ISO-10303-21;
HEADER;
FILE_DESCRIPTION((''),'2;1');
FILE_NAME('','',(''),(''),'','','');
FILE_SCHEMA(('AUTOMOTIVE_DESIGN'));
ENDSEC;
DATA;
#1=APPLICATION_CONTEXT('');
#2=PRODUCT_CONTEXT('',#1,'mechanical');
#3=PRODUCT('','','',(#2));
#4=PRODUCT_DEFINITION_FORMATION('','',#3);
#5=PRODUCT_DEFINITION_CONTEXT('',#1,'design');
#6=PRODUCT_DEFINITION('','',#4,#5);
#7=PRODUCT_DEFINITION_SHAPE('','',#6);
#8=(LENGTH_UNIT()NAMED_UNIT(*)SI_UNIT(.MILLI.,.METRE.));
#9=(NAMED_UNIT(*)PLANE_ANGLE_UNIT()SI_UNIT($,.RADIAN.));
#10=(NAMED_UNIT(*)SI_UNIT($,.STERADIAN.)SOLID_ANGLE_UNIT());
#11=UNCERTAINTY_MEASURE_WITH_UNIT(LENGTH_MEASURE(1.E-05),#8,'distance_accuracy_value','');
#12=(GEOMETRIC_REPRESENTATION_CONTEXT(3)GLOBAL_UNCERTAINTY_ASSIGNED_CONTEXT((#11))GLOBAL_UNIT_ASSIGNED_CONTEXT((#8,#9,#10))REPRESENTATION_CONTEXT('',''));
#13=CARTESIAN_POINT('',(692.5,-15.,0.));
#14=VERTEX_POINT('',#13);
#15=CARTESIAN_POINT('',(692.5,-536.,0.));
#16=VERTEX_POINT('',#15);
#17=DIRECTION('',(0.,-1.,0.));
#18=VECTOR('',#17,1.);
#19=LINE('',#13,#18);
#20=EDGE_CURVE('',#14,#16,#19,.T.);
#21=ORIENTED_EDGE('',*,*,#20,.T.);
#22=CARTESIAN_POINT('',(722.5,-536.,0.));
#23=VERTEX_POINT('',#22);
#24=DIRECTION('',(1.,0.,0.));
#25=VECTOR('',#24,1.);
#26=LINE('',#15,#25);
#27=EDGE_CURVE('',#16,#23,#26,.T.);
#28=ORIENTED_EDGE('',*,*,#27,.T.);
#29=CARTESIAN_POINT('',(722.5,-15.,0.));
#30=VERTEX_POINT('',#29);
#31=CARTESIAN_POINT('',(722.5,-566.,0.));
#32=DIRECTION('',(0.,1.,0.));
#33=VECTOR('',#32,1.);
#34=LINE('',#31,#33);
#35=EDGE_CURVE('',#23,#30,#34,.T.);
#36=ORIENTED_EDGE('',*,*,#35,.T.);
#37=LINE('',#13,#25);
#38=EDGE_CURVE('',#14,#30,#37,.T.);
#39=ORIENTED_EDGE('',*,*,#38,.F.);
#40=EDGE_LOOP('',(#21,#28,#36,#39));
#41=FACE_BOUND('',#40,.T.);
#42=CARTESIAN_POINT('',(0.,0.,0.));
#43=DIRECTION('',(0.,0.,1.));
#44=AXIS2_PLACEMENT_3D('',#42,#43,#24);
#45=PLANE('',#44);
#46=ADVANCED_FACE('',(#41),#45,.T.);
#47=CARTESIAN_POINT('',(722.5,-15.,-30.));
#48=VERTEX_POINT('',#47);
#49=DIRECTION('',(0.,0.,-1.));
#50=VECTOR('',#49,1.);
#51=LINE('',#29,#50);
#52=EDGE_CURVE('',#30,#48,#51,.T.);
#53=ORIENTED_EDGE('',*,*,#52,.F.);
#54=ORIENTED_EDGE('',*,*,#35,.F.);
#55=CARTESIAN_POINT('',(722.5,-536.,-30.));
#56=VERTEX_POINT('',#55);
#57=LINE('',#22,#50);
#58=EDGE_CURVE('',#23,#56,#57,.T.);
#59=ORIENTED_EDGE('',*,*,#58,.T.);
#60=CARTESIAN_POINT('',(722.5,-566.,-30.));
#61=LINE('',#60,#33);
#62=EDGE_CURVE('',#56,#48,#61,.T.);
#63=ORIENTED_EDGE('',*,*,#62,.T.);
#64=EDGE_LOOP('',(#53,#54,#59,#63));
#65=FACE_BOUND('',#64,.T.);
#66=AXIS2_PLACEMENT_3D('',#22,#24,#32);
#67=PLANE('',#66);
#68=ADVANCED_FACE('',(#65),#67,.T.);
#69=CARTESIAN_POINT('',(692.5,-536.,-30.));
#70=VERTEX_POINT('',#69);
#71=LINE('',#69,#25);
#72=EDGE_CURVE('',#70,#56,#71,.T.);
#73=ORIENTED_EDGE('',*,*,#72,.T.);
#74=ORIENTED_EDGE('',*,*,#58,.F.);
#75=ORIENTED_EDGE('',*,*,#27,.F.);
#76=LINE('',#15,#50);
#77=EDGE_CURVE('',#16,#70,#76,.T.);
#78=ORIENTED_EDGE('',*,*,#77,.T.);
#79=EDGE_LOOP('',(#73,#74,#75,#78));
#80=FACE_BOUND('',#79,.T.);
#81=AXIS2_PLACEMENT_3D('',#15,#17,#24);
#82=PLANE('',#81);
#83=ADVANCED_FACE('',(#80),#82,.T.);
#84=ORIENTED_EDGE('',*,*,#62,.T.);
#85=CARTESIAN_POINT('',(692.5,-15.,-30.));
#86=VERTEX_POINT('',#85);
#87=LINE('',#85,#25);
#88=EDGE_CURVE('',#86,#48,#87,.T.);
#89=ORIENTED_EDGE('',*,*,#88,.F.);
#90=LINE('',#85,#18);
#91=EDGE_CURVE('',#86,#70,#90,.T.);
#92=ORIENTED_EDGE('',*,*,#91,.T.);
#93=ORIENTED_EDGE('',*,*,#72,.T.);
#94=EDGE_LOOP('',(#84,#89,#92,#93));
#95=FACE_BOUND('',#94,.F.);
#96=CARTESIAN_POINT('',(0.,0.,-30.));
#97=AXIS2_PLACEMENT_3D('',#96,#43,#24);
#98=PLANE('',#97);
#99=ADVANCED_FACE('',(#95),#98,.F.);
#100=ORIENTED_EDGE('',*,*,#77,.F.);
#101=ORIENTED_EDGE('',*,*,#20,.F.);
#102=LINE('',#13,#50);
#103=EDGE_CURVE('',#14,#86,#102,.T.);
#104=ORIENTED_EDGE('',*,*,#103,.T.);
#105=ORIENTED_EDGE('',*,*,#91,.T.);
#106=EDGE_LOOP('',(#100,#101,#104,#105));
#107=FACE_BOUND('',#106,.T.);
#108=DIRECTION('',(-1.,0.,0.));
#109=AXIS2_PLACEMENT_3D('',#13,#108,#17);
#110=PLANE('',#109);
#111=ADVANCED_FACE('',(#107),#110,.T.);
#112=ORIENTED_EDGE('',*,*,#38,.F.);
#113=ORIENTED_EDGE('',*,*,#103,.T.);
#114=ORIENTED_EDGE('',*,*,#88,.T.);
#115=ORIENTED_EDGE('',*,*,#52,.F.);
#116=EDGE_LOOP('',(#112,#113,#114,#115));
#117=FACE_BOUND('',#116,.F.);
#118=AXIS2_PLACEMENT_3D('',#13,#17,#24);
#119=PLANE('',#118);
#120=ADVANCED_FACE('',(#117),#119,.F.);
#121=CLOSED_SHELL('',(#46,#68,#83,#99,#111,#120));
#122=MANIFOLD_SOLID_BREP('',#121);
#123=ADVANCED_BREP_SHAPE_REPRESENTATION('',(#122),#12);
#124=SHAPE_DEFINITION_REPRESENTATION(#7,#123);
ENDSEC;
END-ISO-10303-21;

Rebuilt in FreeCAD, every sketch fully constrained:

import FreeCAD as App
import Part
import Sketcher


def add_polygon(sketch, points):
    """Adds a closed chain of lines whose ends are joined by coincident constraints."""
    first, n = sketch.GeometryCount, len(points)
    for a, b in zip(points, points[1:] + points[:1]):
        sketch.addGeometry(Part.LineSegment(App.Vector(*a, 0), App.Vector(*b, 0)), False)
    for i in range(n):
        sketch.addConstraint(Sketcher.Constraint("Coincident", first + i, 2, first + (i + 1) % n, 1))

doc = App.newDocument("Part")
body = doc.addObject("PartDesign::Body", "Body")

sketch1 = body.newObject("Sketcher::SketchObject", "Sketch")
sketch1.AttachmentSupport = (doc.getObject("XY_Plane"), [""])
sketch1.MapMode = "FlatFace"
add_polygon(sketch1, [(722.5, -15), (692.5, -15), (692.5, -536), (722.5, -536)])
sketch1.addConstraint([
    Sketcher.Constraint("Horizontal", 0),
    Sketcher.Constraint("Vertical", 1),
    Sketcher.Constraint("Horizontal", 2),
    Sketcher.Constraint("Vertical", 3),
    Sketcher.Constraint("DistanceX", 0, 2, 0, 1, 30.0),
    Sketcher.Constraint("DistanceY", 1, 2, 1, 1, 521.0),
    Sketcher.Constraint("DistanceY", 0, 2, -1, 1, 15.0),
    Sketcher.Constraint("DistanceX", -1, 1, 0, 2, 692.5),
])
pad1 = body.newObject("PartDesign::Pad", "Pad")
pad1.Profile = sketch1
pad1.Length = 30
pad1.Reversed = True

doc.recompute()
